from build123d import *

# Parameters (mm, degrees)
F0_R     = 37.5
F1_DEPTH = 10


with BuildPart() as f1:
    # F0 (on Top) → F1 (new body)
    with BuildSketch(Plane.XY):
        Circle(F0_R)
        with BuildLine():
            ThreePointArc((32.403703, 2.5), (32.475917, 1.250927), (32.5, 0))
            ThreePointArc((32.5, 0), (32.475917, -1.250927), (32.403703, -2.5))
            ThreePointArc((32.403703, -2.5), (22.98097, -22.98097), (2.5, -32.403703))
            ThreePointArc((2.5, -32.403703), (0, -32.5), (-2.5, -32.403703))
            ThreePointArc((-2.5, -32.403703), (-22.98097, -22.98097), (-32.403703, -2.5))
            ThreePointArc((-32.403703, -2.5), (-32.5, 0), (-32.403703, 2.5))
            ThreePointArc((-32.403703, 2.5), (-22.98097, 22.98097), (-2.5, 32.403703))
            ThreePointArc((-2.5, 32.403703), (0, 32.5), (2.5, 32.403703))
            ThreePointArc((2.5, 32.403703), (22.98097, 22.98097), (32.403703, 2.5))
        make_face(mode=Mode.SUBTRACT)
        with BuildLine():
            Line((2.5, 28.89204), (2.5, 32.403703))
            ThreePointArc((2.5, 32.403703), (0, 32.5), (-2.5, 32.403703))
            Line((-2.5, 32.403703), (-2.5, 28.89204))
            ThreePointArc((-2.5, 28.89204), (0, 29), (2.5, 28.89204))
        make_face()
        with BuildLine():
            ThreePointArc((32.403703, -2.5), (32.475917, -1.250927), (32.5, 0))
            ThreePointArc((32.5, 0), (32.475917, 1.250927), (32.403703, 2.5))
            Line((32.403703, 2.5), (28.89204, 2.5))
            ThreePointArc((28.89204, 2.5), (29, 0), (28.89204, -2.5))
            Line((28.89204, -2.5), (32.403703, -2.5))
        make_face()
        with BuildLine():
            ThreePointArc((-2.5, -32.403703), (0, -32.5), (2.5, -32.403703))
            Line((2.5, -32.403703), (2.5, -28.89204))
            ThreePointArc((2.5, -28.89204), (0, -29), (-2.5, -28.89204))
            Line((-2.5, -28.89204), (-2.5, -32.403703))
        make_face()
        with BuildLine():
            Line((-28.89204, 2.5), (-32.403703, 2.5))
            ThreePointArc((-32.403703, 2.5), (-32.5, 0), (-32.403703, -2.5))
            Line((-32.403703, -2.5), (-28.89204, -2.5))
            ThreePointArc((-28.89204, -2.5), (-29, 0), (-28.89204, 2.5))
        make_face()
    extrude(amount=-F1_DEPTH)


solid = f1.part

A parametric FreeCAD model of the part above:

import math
import FreeCAD as App
import Part
import Sketcher
Q = App.Units.Quantity

doc = App.newDocument("Part")
body = doc.addObject("PartDesign::Body", "Body")

sketch1 = doc.addObject("Sketcher::SketchObject", "Sketch")
body.addObject(sketch1)
sketch1.AttachmentSupport = (doc.XY_Plane, [""])
sketch1.MapMode = "FlatFace"
sketch1.addGeometry(Part.Circle(App.Vector(0, 0, 0), App.Vector(0, 0, 1), 37.5), False)
sketch1.addGeometry(Part.ArcOfCircle(Part.Circle(App.Vector(0, 0, 0), App.Vector(0, 0, 1), 32.5), math.radians(4), math.radians(86)), False)
sketch1.addGeometry(Part.LineSegment(App.Vector(32.4, 2.5, 0), App.Vector(28.9, 2.5, 0)), False)
sketch1.addGeometry(Part.ArcOfCircle(Part.Circle(App.Vector(0, 0, 0), App.Vector(0, 0, 1), 29), math.radians(-4.95), math.radians(4.95)), False)
sketch1.addGeometry(Part.LineSegment(App.Vector(28.9, -2.5, 0), App.Vector(32.4, -2.5, 0)), False)
sketch1.addGeometry(Part.ArcOfCircle(Part.Circle(App.Vector(0, 0, 0), App.Vector(0, 0, 1), 32.5), math.radians(-86), math.radians(-4)), False)
sketch1.addGeometry(Part.LineSegment(App.Vector(2.5, -32.4, 0), App.Vector(2.5, -28.9, 0)), False)
sketch1.addGeometry(Part.ArcOfCircle(Part.Circle(App.Vector(0, 0, 0), App.Vector(0, 0, 1), 29), math.radians(-94.95), math.radians(-85.05)), False)
sketch1.addGeometry(Part.LineSegment(App.Vector(-2.5, -28.9, 0), App.Vector(-2.5, -32.4, 0)), False)
sketch1.addGeometry(Part.ArcOfCircle(Part.Circle(App.Vector(0, 0, 0), App.Vector(0, 0, 1), 32.5), math.radians(-176), math.radians(-94)), False)
sketch1.addGeometry(Part.LineSegment(App.Vector(-32.4, -2.5, 0), App.Vector(-28.9, -2.5, 0)), False)
sketch1.addGeometry(Part.ArcOfCircle(Part.Circle(App.Vector(0, 0, 0), App.Vector(0, 0, 1), 29), math.radians(175.05), math.radians(184.95)), False)
sketch1.addGeometry(Part.LineSegment(App.Vector(-28.9, 2.5, 0), App.Vector(-32.4, 2.5, 0)), False)
sketch1.addGeometry(Part.ArcOfCircle(Part.Circle(App.Vector(0, 0, 0), App.Vector(0, 0, 1), 32.5), math.radians(94), math.radians(176)), False)
sketch1.addGeometry(Part.LineSegment(App.Vector(-2.5, 32.4, 0), App.Vector(-2.5, 28.9, 0)), False)
sketch1.addGeometry(Part.ArcOfCircle(Part.Circle(App.Vector(0, 0, 0), App.Vector(0, 0, 1), 29), math.radians(85.05), math.radians(94.95)), False)
sketch1.addGeometry(Part.LineSegment(App.Vector(2.5, 28.9, 0), App.Vector(2.5, 32.4, 0)), False)
sketch1.addConstraint(Sketcher.Constraint("Coincident", 1, 1, 2, 1))
sketch1.addConstraint(Sketcher.Constraint("Coincident", 2, 2, 3, 2))
sketch1.addConstraint(Sketcher.Constraint("Coincident", 3, 1, 4, 1))
sketch1.addConstraint(Sketcher.Constraint("Coincident", 4, 2, 5, 2))
sketch1.addConstraint(Sketcher.Constraint("Coincident", 5, 1, 6, 1))
sketch1.addConstraint(Sketcher.Constraint("Coincident", 6, 2, 7, 2))
sketch1.addConstraint(Sketcher.Constraint("Coincident", 7, 1, 8, 1))
sketch1.addConstraint(Sketcher.Constraint("Coincident", 8, 2, 9, 2))
sketch1.addConstraint(Sketcher.Constraint("Coincident", 9, 1, 10, 1))
sketch1.addConstraint(Sketcher.Constraint("Coincident", 10, 2, 11, 2))
sketch1.addConstraint(Sketcher.Constraint("Coincident", 11, 1, 12, 1))
sketch1.addConstraint(Sketcher.Constraint("Coincident", 12, 2, 13, 2))
sketch1.addConstraint(Sketcher.Constraint("Coincident", 13, 1, 14, 1))
sketch1.addConstraint(Sketcher.Constraint("Coincident", 14, 2, 15, 2))
sketch1.addConstraint(Sketcher.Constraint("Coincident", 15, 1, 16, 1))
sketch1.addConstraint(Sketcher.Constraint("Coincident", 16, 2, 1, 2))
sketch1.addConstraint(Sketcher.Constraint("Horizontal", 2))
sketch1.addConstraint(Sketcher.Constraint("Horizontal", 4))
sketch1.addConstraint(Sketcher.Constraint("Vertical", 6))
sketch1.addConstraint(Sketcher.Constraint("Vertical", 8))
sketch1.addConstraint(Sketcher.Constraint("Horizontal", 10))
sketch1.addConstraint(Sketcher.Constraint("Horizontal", 12))
sketch1.addConstraint(Sketcher.Constraint("Vertical", 14))
sketch1.addConstraint(Sketcher.Constraint("Vertical", 16))
sketch1.addConstraint(Sketcher.Constraint("Coincident", 0, 3, -1, 1))
sketch1.addConstraint(Sketcher.Constraint("Coincident", 1, 3, -1, 1))
sketch1.addConstraint(Sketcher.Constraint("Coincident", 5, 3, -1, 1))
sketch1.addConstraint(Sketcher.Constraint("Coincident", 9, 3, -1, 1))
sketch1.addConstraint(Sketcher.Constraint("Coincident", 13, 3, -1, 1))
sketch1.addConstraint(Sketcher.Constraint("Equal", 1, 5))
sketch1.addConstraint(Sketcher.Constraint("Equal", 3, 7))
sketch1.addConstraint(Sketcher.Constraint("Equal", 5, 9))
sketch1.addConstraint(Sketcher.Constraint("Equal", 7, 11))
sketch1.addConstraint(Sketcher.Constraint("Equal", 9, 13))
sketch1.addConstraint(Sketcher.Constraint("Equal", 11, 15))
sketch1.addConstraint(Sketcher.Constraint("Symmetric", 3, 3, 11, 3, -1, 1))
sketch1.addConstraint(Sketcher.Constraint("Symmetric", 7, 3, 15, 3, -1, 1))
sketch1.addConstraint(Sketcher.Constraint("Symmetric", 6, 2, 7, 1, -2))
sketch1.addConstraint(Sketcher.Constraint("Symmetric", 3, 1, 10, 2, -2))
sketch1.addConstraint(Sketcher.Constraint("Horizontal", 2, 2, 11, 1))
sketch1.addConstraint(Sketcher.Constraint("Horizontal", 14, 2, 15, 1))
sketch1.addConstraint(Sketcher.Constraint("Vertical", 2, 2, 3, 1))
sketch1.addConstraint(Sketcher.Constraint("Vertical", 8, 2, 13, 1))
sketch1.addConstraint(Sketcher.Constraint("Equal", 12, 6))
sketch1.addConstraint(Sketcher.Constraint("Diameter", 0, Q("75 mm")))
sketch1.addConstraint(Sketcher.Constraint("Radius", 1, Q("32.5 mm")))
sketch1.addConstraint(Sketcher.Constraint("DistanceY", 3, 1, 2, 2, Q("5 mm")))
sketch1.addConstraint(Sketcher.Constraint("DistanceX", 7, 1, 6, 2, Q("5 mm")))
sketch1.addConstraint(Sketcher.Constraint("Radius", 3, Q("28.999886 mm")))
sketch1.addConstraint(Sketcher.Constraint("DistanceX", 2, 2, 2, 1, Q("3.511663 mm")))
pad1 = doc.addObject("PartDesign::Pad", "Pad")
body.addObject(pad1)
pad1.Profile = sketch1
pad1.Length = 10
pad1.Reversed = True

doc.recompute()
